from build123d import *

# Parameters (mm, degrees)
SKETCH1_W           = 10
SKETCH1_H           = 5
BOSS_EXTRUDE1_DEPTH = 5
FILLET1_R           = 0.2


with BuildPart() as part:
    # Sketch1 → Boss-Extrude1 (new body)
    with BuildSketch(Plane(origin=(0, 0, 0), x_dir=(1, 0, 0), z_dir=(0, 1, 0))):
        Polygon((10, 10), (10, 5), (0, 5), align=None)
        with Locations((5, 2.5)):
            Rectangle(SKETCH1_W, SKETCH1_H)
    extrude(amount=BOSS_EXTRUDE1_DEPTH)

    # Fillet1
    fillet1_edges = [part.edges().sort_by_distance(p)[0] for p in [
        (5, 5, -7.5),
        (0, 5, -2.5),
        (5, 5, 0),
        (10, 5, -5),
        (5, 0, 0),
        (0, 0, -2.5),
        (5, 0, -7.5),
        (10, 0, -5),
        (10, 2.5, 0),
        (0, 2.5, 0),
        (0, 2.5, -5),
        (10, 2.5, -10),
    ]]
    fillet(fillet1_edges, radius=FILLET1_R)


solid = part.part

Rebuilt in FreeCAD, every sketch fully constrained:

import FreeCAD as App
import Part
import Sketcher


def add_polygon(sketch, points):
    """Adds a closed chain of lines whose ends are joined by coincident constraints."""
    first, n = sketch.GeometryCount, len(points)
    for a, b in zip(points, points[1:] + points[:1]):
        sketch.addGeometry(Part.LineSegment(App.Vector(*a, 0), App.Vector(*b, 0)), False)
    for i in range(n):
        sketch.addConstraint(Sketcher.Constraint("Coincident", first + i, 2, first + (i + 1) % n, 1))

doc = App.newDocument("Part")
body = doc.addObject("PartDesign::Body", "Body")

# Sketch on XZ plane
sketch1 = body.newObject("Sketcher::SketchObject", "Sketch")
sketch1.AttachmentSupport = (doc.getObject("XZ_Plane"), [""])
sketch1.MapMode = "FlatFace"
add_polygon(sketch1, [(10, 0), (10, -10), (0, -5), (0, 0)])  # lines 0-3
sketch1.addConstraint(Sketcher.Constraint("Vertical", 0))
sketch1.addConstraint(Sketcher.Constraint("Vertical", 2))
sketch1.addConstraint(Sketcher.Constraint("Horizontal", 3))
sketch1.addConstraint(Sketcher.Constraint("Coincident", 2, 2, -1, 1))
sketch1.addConstraint(Sketcher.Constraint("Equal", 3, 0))
sketch1.addConstraint(Sketcher.Constraint("DistanceX", 3, 1, 3, 2, 10.0))
sketch1.addConstraint(Sketcher.Constraint("DistanceY", 2, 1, 2, 2, 5.0))
pad1 = body.newObject("PartDesign::Pad", "Pad")
pad1.Profile = sketch1
pad1.Length = 5
pad1.Reversed = True
doc.recompute()

fillet = body.newObject("PartDesign::Fillet", "Fillet")
fillet.Base = (pad1, ["Edge1"])
fillet.UseAllEdges = True
fillet.Radius = 0.2

doc.recompute()
